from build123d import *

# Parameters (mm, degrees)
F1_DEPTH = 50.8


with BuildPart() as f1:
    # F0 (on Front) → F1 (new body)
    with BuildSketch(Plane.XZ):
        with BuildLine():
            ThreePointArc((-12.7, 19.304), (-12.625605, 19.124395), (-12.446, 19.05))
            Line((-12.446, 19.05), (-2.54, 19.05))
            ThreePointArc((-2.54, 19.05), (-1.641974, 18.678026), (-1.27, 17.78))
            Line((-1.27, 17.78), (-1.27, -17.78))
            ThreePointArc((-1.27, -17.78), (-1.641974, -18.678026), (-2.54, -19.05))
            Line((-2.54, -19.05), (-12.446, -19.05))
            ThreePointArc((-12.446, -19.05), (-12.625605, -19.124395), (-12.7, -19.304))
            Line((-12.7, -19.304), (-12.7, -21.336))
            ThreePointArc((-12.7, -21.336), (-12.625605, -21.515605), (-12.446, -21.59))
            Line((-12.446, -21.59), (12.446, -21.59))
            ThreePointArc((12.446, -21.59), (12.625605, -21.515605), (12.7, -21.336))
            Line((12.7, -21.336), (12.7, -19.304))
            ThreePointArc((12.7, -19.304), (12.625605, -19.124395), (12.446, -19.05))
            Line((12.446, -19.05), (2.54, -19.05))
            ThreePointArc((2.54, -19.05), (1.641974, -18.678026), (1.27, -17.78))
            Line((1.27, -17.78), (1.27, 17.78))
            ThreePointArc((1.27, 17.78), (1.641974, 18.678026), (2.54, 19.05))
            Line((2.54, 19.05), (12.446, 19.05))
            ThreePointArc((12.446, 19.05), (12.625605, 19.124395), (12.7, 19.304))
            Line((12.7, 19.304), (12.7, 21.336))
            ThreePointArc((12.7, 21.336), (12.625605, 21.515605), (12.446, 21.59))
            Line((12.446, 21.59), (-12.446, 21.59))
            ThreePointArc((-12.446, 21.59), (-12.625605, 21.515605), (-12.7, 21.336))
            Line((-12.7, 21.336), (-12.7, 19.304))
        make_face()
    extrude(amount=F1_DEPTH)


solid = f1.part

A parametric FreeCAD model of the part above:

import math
import FreeCAD as App
import Part
import Sketcher

V = App.Vector
Q = App.Units.Quantity

doc = App.newDocument("Part")
body = doc.addObject("PartDesign::Body", "Body")

sketch1 = body.newObject("Sketcher::SketchObject", "Sketch")
sketch1.AttachmentSupport = (doc.getObject("XZ_Plane"), [""])
sketch1.MapMode = "FlatFace"
sketch1.addGeometry(Part.ArcOfCircle(Part.Circle(V(-12.45, 19.3, 0), V(0, 0, 1), 0.25), math.radians(-180), math.radians(-90)), False)
sketch1.addGeometry(Part.LineSegment(V(-12.45, 19.05, 0), V(-2.54, 19.05, 0)), False)
sketch1.addGeometry(Part.ArcOfCircle(Part.Circle(V(-2.54, 17.78, 0), V(0, 0, 1), 1.27), math.radians(0), math.radians(90)), False)
sketch1.addGeometry(Part.LineSegment(V(-1.27, 17.78, 0), V(-1.27, -17.78, 0)), False)
sketch1.addGeometry(Part.ArcOfCircle(Part.Circle(V(-2.54, -17.78, 0), V(0, 0, 1), 1.27), math.radians(-90), math.radians(0)), False)
sketch1.addGeometry(Part.LineSegment(V(-2.54, -19.05, 0), V(-12.45, -19.05, 0)), False)
sketch1.addGeometry(Part.ArcOfCircle(Part.Circle(V(-12.45, -19.3, 0), V(0, 0, 1), 0.25), math.radians(90), math.radians(180)), False)
sketch1.addGeometry(Part.LineSegment(V(-12.7, -19.3, 0), V(-12.7, -21.34, 0)), False)
sketch1.addGeometry(Part.ArcOfCircle(Part.Circle(V(-12.45, -21.34, 0), V(0, 0, 1), 0.25), math.radians(-180), math.radians(-90)), False)
sketch1.addGeometry(Part.LineSegment(V(-12.45, -21.59, 0), V(12.45, -21.59, 0)), False)
sketch1.addGeometry(Part.ArcOfCircle(Part.Circle(V(12.45, -21.34, 0), V(0, 0, 1), 0.25), math.radians(-90), math.radians(0)), False)
sketch1.addGeometry(Part.LineSegment(V(12.7, -21.34, 0), V(12.7, -19.3, 0)), False)
sketch1.addGeometry(Part.ArcOfCircle(Part.Circle(V(12.45, -19.3, 0), V(0, 0, 1), 0.25), math.radians(0), math.radians(90)), False)
sketch1.addGeometry(Part.LineSegment(V(12.45, -19.05, 0), V(2.54, -19.05, 0)), False)
sketch1.addGeometry(Part.ArcOfCircle(Part.Circle(V(2.54, -17.78, 0), V(0, 0, 1), 1.27), math.radians(180), math.radians(270)), False)
sketch1.addGeometry(Part.LineSegment(V(1.27, -17.78, 0), V(1.27, 17.78, 0)), False)
sketch1.addGeometry(Part.ArcOfCircle(Part.Circle(V(2.54, 17.78, 0), V(0, 0, 1), 1.27), math.radians(90), math.radians(180)), False)
sketch1.addGeometry(Part.LineSegment(V(2.54, 19.05, 0), V(12.45, 19.05, 0)), False)
sketch1.addGeometry(Part.ArcOfCircle(Part.Circle(V(12.45, 19.3, 0), V(0, 0, 1), 0.25), math.radians(-90), math.radians(0)), False)
sketch1.addGeometry(Part.LineSegment(V(12.7, 19.3, 0), V(12.7, 21.34, 0)), False)
sketch1.addGeometry(Part.ArcOfCircle(Part.Circle(V(12.45, 21.34, 0), V(0, 0, 1), 0.25), math.radians(0), math.radians(90)), False)
sketch1.addGeometry(Part.LineSegment(V(12.45, 21.59, 0), V(-12.45, 21.59, 0)), False)
sketch1.addGeometry(Part.ArcOfCircle(Part.Circle(V(-12.45, 21.34, 0), V(0, 0, 1), 0.25), math.radians(90), math.radians(180)), False)
sketch1.addGeometry(Part.LineSegment(V(-12.7, 21.34, 0), V(-12.7, 19.3, 0)), False)
sketch1.addConstraint(Sketcher.Constraint("Tangent", 0, 2, 1, 1))
sketch1.addConstraint(Sketcher.Constraint("Tangent", 1, 2, 2, 2))
sketch1.addConstraint(Sketcher.Constraint("Tangent", 2, 1, 3, 1))
sketch1.addConstraint(Sketcher.Constraint("Tangent", 3, 2, 4, 2))
sketch1.addConstraint(Sketcher.Constraint("Tangent", 4, 1, 5, 1))
sketch1.addConstraint(Sketcher.Constraint("Tangent", 5, 2, 6, 1))
sketch1.addConstraint(Sketcher.Constraint("Tangent", 6, 2, 7, 1))
sketch1.addConstraint(Sketcher.Constraint("Tangent", 7, 2, 8, 1))
sketch1.addConstraint(Sketcher.Constraint("Tangent", 8, 2, 9, 1))
sketch1.addConstraint(Sketcher.Constraint("Tangent", 9, 2, 10, 1))
sketch1.addConstraint(Sketcher.Constraint("Tangent", 10, 2, 11, 1))
sketch1.addConstraint(Sketcher.Constraint("Tangent", 11, 2, 12, 1))
sketch1.addConstraint(Sketcher.Constraint("Tangent", 12, 2, 13, 1))
sketch1.addConstraint(Sketcher.Constraint("Tangent", 13, 2, 14, 2))
sketch1.addConstraint(Sketcher.Constraint("Tangent", 14, 1, 15, 1))
sketch1.addConstraint(Sketcher.Constraint("Tangent", 15, 2, 16, 2))
sketch1.addConstraint(Sketcher.Constraint("Tangent", 16, 1, 17, 1))
sketch1.addConstraint(Sketcher.Constraint("Tangent", 17, 2, 18, 1))
sketch1.addConstraint(Sketcher.Constraint("Tangent", 18, 2, 19, 1))
sketch1.addConstraint(Sketcher.Constraint("Tangent", 19, 2, 20, 1))
sketch1.addConstraint(Sketcher.Constraint("Tangent", 20, 2, 21, 1))
sketch1.addConstraint(Sketcher.Constraint("Tangent", 21, 2, 22, 1))
sketch1.addConstraint(Sketcher.Constraint("Tangent", 22, 2, 23, 1))
sketch1.addConstraint(Sketcher.Constraint("Tangent", 23, 2, 0, 1))
sketch1.addConstraint(Sketcher.Constraint("Horizontal", 1))
sketch1.addConstraint(Sketcher.Constraint("Vertical", 3))
sketch1.addConstraint(Sketcher.Constraint("Horizontal", 5))
sketch1.addConstraint(Sketcher.Constraint("Vertical", 7))
sketch1.addConstraint(Sketcher.Constraint("Horizontal", 9))
sketch1.addConstraint(Sketcher.Constraint("Vertical", 11))
sketch1.addConstraint(Sketcher.Constraint("Horizontal", 13))
sketch1.addConstraint(Sketcher.Constraint("Vertical", 15))
sketch1.addConstraint(Sketcher.Constraint("Horizontal", 17))
sketch1.addConstraint(Sketcher.Constraint("Vertical", 19))
sketch1.addConstraint(Sketcher.Constraint("Horizontal", 21))
sketch1.addConstraint(Sketcher.Constraint("Vertical", 23))
sketch1.addConstraint(Sketcher.Constraint("Equal", 2, 4))
sketch1.addConstraint(Sketcher.Constraint("Equal", 0, 6))
sketch1.addConstraint(Sketcher.Constraint("Equal", 6, 8))
sketch1.addConstraint(Sketcher.Constraint("Equal", 8, 10))
sketch1.addConstraint(Sketcher.Constraint("Equal", 10, 12))
sketch1.addConstraint(Sketcher.Constraint("Equal", 4, 14))
sketch1.addConstraint(Sketcher.Constraint("Equal", 14, 16))
sketch1.addConstraint(Sketcher.Constraint("Equal", 12, 18))
sketch1.addConstraint(Sketcher.Constraint("Equal", 18, 20))
sketch1.addConstraint(Sketcher.Constraint("Equal", 20, 22))
sketch1.addConstraint(Sketcher.Constraint("Symmetric", 0, 3, 12, 3, -1, 1))
sketch1.addConstraint(Sketcher.Constraint("Symmetric", 4, 3, 16, 3, -1, 1))
sketch1.addConstraint(Sketcher.Constraint("Symmetric", 8, 3, 20, 3, -1, 1))
sketch1.addConstraint(Sketcher.Constraint("Symmetric", 6, 3, 12, 3, -2))
sketch1.addConstraint(Sketcher.Constraint("Radius", 0, Q("0.01 in")))
sketch1.addConstraint(Sketcher.Constraint("Radius", 2, Q("0.0499999 in")))
sketch1.addConstraint(Sketcher.Constraint("DistanceY", 3, 2, 3, 1, Q("1.4 in")))
sketch1.addConstraint(Sketcher.Constraint("DistanceX", 1, 1, 1, 2, Q("0.39 in")))
sketch1.addConstraint(Sketcher.Constraint("DistanceX", 9, 1, 9, 2, Q("0.98 in")))
sketch1.addConstraint(Sketcher.Constraint("DistanceY", 7, 2, 7, 1, Q("0.08 in")))
pad1 = body.newObject("PartDesign::Pad", "Pad")
pad1.Profile = sketch1
pad1.Length = Q("2 in")

doc.recompute()
